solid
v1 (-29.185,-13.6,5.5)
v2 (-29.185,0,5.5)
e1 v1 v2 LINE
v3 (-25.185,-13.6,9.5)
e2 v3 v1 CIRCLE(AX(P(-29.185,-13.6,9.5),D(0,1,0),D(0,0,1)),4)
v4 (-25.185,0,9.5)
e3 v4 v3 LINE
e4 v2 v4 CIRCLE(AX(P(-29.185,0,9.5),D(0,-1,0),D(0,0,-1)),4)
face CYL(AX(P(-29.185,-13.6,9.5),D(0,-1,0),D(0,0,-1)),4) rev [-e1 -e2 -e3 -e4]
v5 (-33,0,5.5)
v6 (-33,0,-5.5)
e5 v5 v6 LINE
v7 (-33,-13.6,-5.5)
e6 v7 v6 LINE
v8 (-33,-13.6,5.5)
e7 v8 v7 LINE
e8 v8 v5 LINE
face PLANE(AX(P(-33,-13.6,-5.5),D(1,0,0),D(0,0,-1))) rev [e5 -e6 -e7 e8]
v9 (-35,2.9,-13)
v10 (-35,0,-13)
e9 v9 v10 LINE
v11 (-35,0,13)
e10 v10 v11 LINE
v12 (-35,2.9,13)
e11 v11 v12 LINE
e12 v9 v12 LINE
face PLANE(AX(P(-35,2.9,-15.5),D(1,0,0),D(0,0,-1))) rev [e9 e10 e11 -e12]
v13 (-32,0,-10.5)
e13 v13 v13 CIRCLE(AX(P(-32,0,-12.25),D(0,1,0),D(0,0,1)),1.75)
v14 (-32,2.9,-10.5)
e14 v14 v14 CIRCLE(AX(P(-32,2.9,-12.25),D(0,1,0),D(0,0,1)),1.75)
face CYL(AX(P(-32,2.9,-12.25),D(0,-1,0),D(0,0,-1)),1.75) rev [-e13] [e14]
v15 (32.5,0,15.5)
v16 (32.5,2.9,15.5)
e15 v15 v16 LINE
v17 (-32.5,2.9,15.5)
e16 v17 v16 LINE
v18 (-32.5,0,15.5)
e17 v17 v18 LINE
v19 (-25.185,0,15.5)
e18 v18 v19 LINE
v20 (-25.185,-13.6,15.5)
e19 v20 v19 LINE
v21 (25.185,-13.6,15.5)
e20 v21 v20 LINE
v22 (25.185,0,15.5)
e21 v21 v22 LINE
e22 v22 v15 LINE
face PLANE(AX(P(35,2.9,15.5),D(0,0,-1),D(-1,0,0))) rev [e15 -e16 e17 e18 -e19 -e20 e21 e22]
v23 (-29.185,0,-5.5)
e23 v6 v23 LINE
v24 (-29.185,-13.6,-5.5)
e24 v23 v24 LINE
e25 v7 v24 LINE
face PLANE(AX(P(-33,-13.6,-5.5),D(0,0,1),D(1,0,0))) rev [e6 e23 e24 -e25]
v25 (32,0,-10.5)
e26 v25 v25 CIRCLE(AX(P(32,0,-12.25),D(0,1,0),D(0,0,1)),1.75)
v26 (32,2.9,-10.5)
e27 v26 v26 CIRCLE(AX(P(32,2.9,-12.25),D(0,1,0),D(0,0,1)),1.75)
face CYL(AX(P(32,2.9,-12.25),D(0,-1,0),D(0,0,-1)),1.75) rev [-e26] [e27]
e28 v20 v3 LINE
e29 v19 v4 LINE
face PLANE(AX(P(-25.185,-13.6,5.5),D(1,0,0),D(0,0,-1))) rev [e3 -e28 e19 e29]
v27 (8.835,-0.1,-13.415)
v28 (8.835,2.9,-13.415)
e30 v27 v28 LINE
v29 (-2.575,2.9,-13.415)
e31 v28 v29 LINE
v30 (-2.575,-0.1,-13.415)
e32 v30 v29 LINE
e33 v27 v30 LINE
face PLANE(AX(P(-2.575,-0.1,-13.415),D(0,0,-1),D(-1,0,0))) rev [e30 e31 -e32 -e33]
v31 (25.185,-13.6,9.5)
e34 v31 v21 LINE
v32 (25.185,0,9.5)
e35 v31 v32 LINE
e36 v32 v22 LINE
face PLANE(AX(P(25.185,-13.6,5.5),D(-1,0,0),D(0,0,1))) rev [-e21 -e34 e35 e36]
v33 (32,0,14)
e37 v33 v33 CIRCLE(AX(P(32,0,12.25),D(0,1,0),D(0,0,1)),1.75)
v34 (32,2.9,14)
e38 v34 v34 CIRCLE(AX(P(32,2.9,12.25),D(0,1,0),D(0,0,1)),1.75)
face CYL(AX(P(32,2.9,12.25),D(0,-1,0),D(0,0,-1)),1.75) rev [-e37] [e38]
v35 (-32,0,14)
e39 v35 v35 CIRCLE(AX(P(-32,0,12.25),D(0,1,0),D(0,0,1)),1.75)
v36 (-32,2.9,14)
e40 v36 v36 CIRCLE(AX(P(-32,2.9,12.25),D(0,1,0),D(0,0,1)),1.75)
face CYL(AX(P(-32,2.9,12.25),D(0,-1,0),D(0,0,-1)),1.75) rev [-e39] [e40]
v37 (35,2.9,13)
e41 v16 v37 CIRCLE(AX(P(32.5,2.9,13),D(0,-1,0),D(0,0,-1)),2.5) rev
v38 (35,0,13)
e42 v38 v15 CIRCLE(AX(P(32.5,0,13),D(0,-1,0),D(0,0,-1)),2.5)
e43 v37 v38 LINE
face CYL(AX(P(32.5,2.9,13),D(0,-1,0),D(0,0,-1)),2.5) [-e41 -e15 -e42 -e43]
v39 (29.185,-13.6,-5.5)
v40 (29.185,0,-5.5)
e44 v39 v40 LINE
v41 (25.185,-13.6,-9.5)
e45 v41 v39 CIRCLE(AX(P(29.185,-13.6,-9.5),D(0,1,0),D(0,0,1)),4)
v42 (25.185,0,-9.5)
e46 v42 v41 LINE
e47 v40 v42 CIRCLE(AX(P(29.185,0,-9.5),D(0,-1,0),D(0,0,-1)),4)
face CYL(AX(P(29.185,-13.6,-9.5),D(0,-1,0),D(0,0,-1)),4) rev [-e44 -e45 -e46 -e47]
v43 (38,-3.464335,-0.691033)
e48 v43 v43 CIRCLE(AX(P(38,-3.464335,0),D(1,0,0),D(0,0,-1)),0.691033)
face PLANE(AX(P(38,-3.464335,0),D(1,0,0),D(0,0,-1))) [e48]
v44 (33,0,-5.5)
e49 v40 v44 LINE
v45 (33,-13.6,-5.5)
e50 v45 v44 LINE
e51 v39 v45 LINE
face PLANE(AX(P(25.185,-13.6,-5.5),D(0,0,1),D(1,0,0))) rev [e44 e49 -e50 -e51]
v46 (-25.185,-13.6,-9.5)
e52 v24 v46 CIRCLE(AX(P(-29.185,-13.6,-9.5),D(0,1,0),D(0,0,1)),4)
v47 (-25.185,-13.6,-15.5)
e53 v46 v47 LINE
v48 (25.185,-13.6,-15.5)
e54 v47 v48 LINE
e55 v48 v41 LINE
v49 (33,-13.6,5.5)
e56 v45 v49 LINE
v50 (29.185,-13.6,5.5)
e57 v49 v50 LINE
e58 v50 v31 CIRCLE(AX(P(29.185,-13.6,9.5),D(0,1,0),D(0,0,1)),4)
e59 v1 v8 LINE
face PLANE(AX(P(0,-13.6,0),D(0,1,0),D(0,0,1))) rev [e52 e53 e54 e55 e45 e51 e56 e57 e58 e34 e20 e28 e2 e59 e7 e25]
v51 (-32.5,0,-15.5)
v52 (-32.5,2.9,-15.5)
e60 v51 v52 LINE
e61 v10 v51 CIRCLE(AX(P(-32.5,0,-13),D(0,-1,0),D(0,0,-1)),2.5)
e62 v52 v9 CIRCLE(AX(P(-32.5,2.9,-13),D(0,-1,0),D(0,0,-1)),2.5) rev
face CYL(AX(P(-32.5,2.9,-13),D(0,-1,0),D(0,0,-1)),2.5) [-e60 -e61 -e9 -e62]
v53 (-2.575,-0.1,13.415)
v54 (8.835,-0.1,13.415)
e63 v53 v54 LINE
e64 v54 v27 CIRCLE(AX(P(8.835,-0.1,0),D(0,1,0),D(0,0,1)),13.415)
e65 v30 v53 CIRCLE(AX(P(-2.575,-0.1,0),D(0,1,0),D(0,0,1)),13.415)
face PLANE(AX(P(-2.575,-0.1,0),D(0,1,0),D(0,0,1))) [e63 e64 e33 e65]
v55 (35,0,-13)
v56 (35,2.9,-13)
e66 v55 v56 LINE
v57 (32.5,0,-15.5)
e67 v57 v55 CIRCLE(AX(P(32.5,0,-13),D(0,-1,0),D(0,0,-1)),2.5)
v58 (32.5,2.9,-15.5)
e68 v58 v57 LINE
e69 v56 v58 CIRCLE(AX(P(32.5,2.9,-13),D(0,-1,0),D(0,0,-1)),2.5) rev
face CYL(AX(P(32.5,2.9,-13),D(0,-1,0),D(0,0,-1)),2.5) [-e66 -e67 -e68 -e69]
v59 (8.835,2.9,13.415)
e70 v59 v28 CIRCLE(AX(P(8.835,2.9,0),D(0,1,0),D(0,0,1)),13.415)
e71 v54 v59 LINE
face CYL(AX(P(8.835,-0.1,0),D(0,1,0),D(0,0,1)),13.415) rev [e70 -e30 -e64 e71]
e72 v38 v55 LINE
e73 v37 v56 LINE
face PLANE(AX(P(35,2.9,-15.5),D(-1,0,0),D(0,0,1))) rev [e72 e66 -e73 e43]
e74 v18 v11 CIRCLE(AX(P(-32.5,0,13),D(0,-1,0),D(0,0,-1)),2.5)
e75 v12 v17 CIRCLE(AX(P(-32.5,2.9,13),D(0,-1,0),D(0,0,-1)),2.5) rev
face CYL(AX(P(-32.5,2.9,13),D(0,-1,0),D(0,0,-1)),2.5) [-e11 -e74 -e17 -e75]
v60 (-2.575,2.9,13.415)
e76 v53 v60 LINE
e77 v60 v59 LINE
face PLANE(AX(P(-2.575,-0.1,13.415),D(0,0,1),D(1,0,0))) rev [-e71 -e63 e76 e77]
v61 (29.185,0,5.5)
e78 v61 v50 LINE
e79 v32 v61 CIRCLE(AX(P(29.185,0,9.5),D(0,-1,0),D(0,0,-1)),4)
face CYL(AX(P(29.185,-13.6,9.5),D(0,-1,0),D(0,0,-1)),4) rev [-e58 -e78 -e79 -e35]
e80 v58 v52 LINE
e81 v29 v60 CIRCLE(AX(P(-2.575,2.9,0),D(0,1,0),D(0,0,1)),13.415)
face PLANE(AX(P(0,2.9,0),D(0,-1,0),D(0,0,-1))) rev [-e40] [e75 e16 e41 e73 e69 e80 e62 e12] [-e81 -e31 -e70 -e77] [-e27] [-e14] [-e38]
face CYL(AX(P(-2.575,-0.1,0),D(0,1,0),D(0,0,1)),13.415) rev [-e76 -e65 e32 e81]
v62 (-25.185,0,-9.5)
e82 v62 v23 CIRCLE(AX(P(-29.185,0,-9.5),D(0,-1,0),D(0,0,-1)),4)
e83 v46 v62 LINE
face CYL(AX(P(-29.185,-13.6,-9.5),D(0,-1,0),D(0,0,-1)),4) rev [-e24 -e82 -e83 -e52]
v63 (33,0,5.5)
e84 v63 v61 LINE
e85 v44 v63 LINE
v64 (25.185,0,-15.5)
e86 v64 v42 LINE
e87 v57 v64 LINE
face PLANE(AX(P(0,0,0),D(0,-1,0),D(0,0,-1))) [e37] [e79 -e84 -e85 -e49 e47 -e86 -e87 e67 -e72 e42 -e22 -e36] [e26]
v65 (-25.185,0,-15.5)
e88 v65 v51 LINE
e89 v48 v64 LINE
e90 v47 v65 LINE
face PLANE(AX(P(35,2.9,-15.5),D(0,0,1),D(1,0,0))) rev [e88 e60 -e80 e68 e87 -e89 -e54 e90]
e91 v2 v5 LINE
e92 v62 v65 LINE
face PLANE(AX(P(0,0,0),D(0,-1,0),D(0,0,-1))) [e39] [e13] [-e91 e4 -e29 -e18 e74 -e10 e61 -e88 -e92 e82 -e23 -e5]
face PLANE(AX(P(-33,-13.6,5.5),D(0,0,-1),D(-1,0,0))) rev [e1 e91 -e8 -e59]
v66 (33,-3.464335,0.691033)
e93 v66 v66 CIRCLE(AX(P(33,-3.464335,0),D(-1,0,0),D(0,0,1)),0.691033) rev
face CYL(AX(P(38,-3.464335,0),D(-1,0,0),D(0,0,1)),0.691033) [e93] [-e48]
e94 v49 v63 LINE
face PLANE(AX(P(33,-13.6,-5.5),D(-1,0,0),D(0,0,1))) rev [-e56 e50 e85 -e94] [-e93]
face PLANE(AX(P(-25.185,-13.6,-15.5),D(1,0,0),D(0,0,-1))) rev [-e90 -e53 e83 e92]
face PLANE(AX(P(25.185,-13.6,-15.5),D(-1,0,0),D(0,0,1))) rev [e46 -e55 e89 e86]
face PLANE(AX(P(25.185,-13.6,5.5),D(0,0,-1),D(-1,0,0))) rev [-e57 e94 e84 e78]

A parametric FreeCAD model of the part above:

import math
import FreeCAD as App
import Part
import Sketcher
Q = App.Units.Quantity


def edges_at(feature, points):
    """Names of the edges that pass closest to the given points."""
    edges = feature.Shape.Edges
    near = lambda p: min(range(len(edges)), key=lambda i: edges[i].distToShape(Part.Vertex(*p))[0])
    return sorted({f"Edge{near(p) + 1}" for p in points})

doc = App.newDocument("Part")
params = doc.addObject("Spreadsheet::Sheet", "Params")
for row, (alias, value) in enumerate([
    ("sketch1_diameter", "3.5 mm"),
    ("sketch1_width", "70 mm"),
    ("sketch1_height", "31 mm"),
    ("pad1_length", "2.9 mm"),
    ("fillet_radius", "2.5 mm"),
    ("sketch2_height", "10 mm"),
    ("sketch2_height2", "11 mm"),
    ("sketch2_width", "50.37 mm"),
    ("pad2_length", "13.6 mm"),
    ("fillet2_radius", "4 mm"),
    ("sketch3_width", "11.41 mm"),
    ("pocket1_length", "3 mm"),
    ("pad3_length", "5 mm"),
], start=1):
    params.set(f"A{row}", alias)
    params.set(f"B{row}", "=" + value)
    params.setAlias(f"B{row}", alias)

body = doc.addObject("PartDesign::Body", "Body")

sketch1 = body.newObject("Sketcher::SketchObject", "Sketch")
sketch1.AttachmentSupport = (doc.getObject("XZ_Plane"), [""])
sketch1.MapMode = "FlatFace"
sketch1.addGeometry([
    Part.LineSegment(App.Vector(-35, -15.5, 0), App.Vector(-35, 15.5, 0)),
    Part.LineSegment(App.Vector(-35, 15.5, 0), App.Vector(35, 15.5, 0)),
    Part.LineSegment(App.Vector(35, 15.5, 0), App.Vector(35, -15.5, 0)),
    Part.LineSegment(App.Vector(35, -15.5, 0), App.Vector(-35, -15.5, 0)),
    Part.Circle(App.Vector(-32, 12.25, 0), App.Vector(0, 0, 1), 1.75),
    Part.Circle(App.Vector(32, 12.25, 0), App.Vector(0, 0, 1), 1.75),
    Part.Circle(App.Vector(-32, -12.25, 0), App.Vector(0, 0, 1), 1.75),
    Part.Circle(App.Vector(32, -12.25, 0), App.Vector(0, 0, 1), 1.75),
], False)
sketch1.addConstraint([
    Sketcher.Constraint("Coincident", 0, 2, 1, 1),
    Sketcher.Constraint("Coincident", 1, 2, 2, 1),
    Sketcher.Constraint("Coincident", 2, 2, 3, 1),
    Sketcher.Constraint("Coincident", 3, 2, 0, 1),
    Sketcher.Constraint("Vertical", 0),
    Sketcher.Constraint("Horizontal", 1),
    Sketcher.Constraint("Vertical", 2),
    Sketcher.Constraint("Horizontal", 3),
    Sketcher.Constraint("Equal", 4, 5),
    Sketcher.Constraint("Equal", 5, 6),
    Sketcher.Constraint("Equal", 6, 7),
    Sketcher.Constraint("Symmetric", 5, 3, 6, 3, -1, 1),
    Sketcher.Constraint("Symmetric", 4, 3, 7, 3, -1, 1),
    Sketcher.Constraint("Symmetric", 0, 2, 2, 2, -1, 1),
    Sketcher.Constraint("Symmetric", 4, 3, 5, 3, -2),
    Sketcher.Constraint("Diameter", 4, Q("3.5 mm")),
    Sketcher.Constraint("DistanceX", 1, 1, 1, 2, Q("70 mm")),
    Sketcher.Constraint("DistanceY", 0, 1, 0, 2, Q("31 mm")),
    Sketcher.Constraint("DistanceX", 4, 3, -1, 1, Q("32 mm")),
    Sketcher.Constraint("DistanceY", 6, 3, 4, 3, Q("24.5 mm")),
])
sketch1.setExpression("Constraints[15]", "Params.sketch1_diameter")
sketch1.setExpression("Constraints[16]", "Params.sketch1_width")
sketch1.setExpression("Constraints[17]", "Params.sketch1_height")
pad1 = body.newObject("PartDesign::Pad", "Pad")
pad1.Profile = sketch1
pad1.setExpression("Length", "Params.pad1_length")
pad1.Reversed = True
doc.recompute()

fillet = body.newObject("PartDesign::Fillet", "Fillet")
fillet.Base = (pad1, edges_at(pad1, [
    (-35, 1.45, -15.5),
    (35, 1.45, -15.5),
    (35, 1.45, 15.5),
    (-35, 1.45, 15.5),
]))
fillet.setExpression("Radius", "Params.fillet_radius")

sketch2 = body.newObject("Sketcher::SketchObject", "Sketch001")
sketch2.AttachmentSupport = (doc.getObject("XZ_Plane"), [""])
sketch2.MapMode = "FlatFace"
sketch2.addGeometry([
    Part.LineSegment(App.Vector(-25.185, -15.5, 0), App.Vector(25.185, -15.5, 0)),
    Part.LineSegment(App.Vector(25.185, -15.5, 0), App.Vector(25.185, -5.5, 0)),
    Part.LineSegment(App.Vector(25.185, -5.5, 0), App.Vector(33, -5.5, 0)),
    Part.LineSegment(App.Vector(33, -5.5, 0), App.Vector(33, 5.5, 0)),
    Part.LineSegment(App.Vector(33, 5.5, 0), App.Vector(25.185, 5.5, 0)),
    Part.LineSegment(App.Vector(25.185, 5.5, 0), App.Vector(25.185, 15.5, 0)),
    Part.LineSegment(App.Vector(25.185, 15.5, 0), App.Vector(-25.185, 15.5, 0)),
    Part.LineSegment(App.Vector(-25.185, 15.5, 0), App.Vector(-25.185, 5.5, 0)),
    Part.LineSegment(App.Vector(-25.185, 5.5, 0), App.Vector(-33, 5.5, 0)),
    Part.LineSegment(App.Vector(-33, 5.5, 0), App.Vector(-33, -5.5, 0)),
    Part.LineSegment(App.Vector(-33, -5.5, 0), App.Vector(-25.185, -5.5, 0)),
    Part.LineSegment(App.Vector(-25.185, -5.5, 0), App.Vector(-25.185, -15.5, 0)),
], False)
sketch2.addConstraint([
    Sketcher.Constraint("Coincident", 0, 2, 1, 1),
    Sketcher.Constraint("Coincident", 1, 2, 2, 1),
    Sketcher.Constraint("Coincident", 2, 2, 3, 1),
    Sketcher.Constraint("Coincident", 3, 2, 4, 1),
    Sketcher.Constraint("Coincident", 4, 2, 5, 1),
    Sketcher.Constraint("Coincident", 5, 2, 6, 1),
    Sketcher.Constraint("Coincident", 6, 2, 7, 1),
    Sketcher.Constraint("Coincident", 7, 2, 8, 1),
    Sketcher.Constraint("Coincident", 8, 2, 9, 1),
    Sketcher.Constraint("Coincident", 9, 2, 10, 1),
    Sketcher.Constraint("Coincident", 10, 2, 11, 1),
    Sketcher.Constraint("Coincident", 11, 2, 0, 1),
    Sketcher.Constraint("Horizontal", 0),
    Sketcher.Constraint("Vertical", 1),
    Sketcher.Constraint("Horizontal", 2),
    Sketcher.Constraint("Vertical", 3),
    Sketcher.Constraint("Horizontal", 4),
    Sketcher.Constraint("Vertical", 5),
    Sketcher.Constraint("Horizontal", 6),
    Sketcher.Constraint("Vertical", 7),
    Sketcher.Constraint("Horizontal", 8),
    Sketcher.Constraint("Vertical", 9),
    Sketcher.Constraint("Horizontal", 10),
    Sketcher.Constraint("Vertical", 11),
    Sketcher.Constraint("Symmetric", 0, 2, 6, 2, -1, 1),
    Sketcher.Constraint("Symmetric", 2, 2, 8, 2, -1, 1),
    Sketcher.Constraint("Symmetric", 4, 2, 10, 2, -1, 1),
    Sketcher.Constraint("Symmetric", 4, 2, 7, 2, -2),
    Sketcher.Constraint("DistanceY", 1, 1, 1, 2, Q("10 mm")),
    Sketcher.Constraint("DistanceY", 3, 1, 3, 2, Q("11 mm")),
    Sketcher.Constraint("DistanceX", -1, 1, 2, 2, Q("33 mm")),
    Sketcher.Constraint("DistanceX", 0, 1, 0, 2, Q("50.37 mm")),
])
sketch2.setExpression("Constraints[28]", "Params.sketch2_height")
sketch2.setExpression("Constraints[29]", "Params.sketch2_height2")
sketch2.setExpression("Constraints[31]", "Params.sketch2_width")
pad2 = body.newObject("PartDesign::Pad", "Pad001")
pad2.Profile = sketch2
pad2.setExpression("Length", "Params.pad2_length")
doc.recompute()

fillet2 = body.newObject("PartDesign::Fillet", "Fillet001")
fillet2.Base = (pad2, edges_at(pad2, [
    (25.185, -6.8, 5.5),
    (-25.185, -6.8, 5.5),
    (-25.185, -6.8, -5.5),
    (25.185, -6.8, -5.5),
]))
fillet2.setExpression("Radius", "Params.fillet2_radius")

sketch3 = body.newObject("Sketcher::SketchObject", "Sketch002")
sketch3.AttachmentSupport = (doc.getObject("XZ_Plane"), [""])
sketch3.MapMode = "FlatFace"
sketch3.AttachmentOffset = App.Placement(App.Vector(0, 0, -2.9), App.Rotation())
sketch3.addGeometry([
    Part.LineSegment(App.Vector(8.835, -13.415, 0), App.Vector(-2.575, -13.415, 0)),
    Part.ArcOfCircle(Part.Circle(App.Vector(-2.575, 0, 0), App.Vector(0, 0, 1), 13.415), math.radians(90), math.radians(270)),
    Part.LineSegment(App.Vector(-2.575, 13.415, 0), App.Vector(8.835, 13.415, 0)),
    Part.ArcOfCircle(Part.Circle(App.Vector(8.835, 0, 0), App.Vector(0, 0, 1), 13.415), math.radians(-90), math.radians(90)),
], False)
sketch3.addConstraint([
    Sketcher.Constraint("Tangent", 0, 2, 1, 2),
    Sketcher.Constraint("Tangent", 1, 1, 2, 1),
    Sketcher.Constraint("Tangent", 2, 2, 3, 2),
    Sketcher.Constraint("Tangent", 3, 1, 0, 1),
    Sketcher.Constraint("Horizontal", 0),
    Sketcher.Constraint("Horizontal", 2),
    Sketcher.Constraint("PointOnObject", 1, 3, -1),
    Sketcher.Constraint("Radius", 1, Q("13.415 mm")),
    Sketcher.Constraint("DistanceX", 0, 2, 0, 1, Q("11.41 mm")),
    Sketcher.Constraint("DistanceX", 1, 3, -1, 1, Q("2.575 mm")),
])
sketch3.setExpression("Constraints[8]", "Params.sketch3_width")
pocket1 = body.newObject("PartDesign::Pocket", "Pocket")
pocket1.Profile = sketch3
pocket1.setExpression("Length", "Params.pocket1_length")
pocket1.Reversed = True

sketch4 = body.newObject("Sketcher::SketchObject", "Sketch003")
sketch4.AttachmentSupport = (doc.getObject("YZ_Plane"), [""])
sketch4.MapMode = "FlatFace"
sketch4.AttachmentOffset = App.Placement(App.Vector(0, 0, 33), App.Rotation())
sketch4.addGeometry(Part.Circle(App.Vector(-3.464335, 0, 0), App.Vector(0, 0, 1), 0.691033), False)
sketch4.addConstraint([
    Sketcher.Constraint("PointOnObject", 0, 3, -1),
    Sketcher.Constraint("Diameter", 0, Q("1.382065 mm")),
    Sketcher.Constraint("DistanceX", 0, 3, -1, 1, Q("3.464335 mm")),
])
pad3 = body.newObject("PartDesign::Pad", "Pad002")
pad3.Profile = sketch4
pad3.setExpression("Length", "Params.pad3_length")

doc.recompute()
